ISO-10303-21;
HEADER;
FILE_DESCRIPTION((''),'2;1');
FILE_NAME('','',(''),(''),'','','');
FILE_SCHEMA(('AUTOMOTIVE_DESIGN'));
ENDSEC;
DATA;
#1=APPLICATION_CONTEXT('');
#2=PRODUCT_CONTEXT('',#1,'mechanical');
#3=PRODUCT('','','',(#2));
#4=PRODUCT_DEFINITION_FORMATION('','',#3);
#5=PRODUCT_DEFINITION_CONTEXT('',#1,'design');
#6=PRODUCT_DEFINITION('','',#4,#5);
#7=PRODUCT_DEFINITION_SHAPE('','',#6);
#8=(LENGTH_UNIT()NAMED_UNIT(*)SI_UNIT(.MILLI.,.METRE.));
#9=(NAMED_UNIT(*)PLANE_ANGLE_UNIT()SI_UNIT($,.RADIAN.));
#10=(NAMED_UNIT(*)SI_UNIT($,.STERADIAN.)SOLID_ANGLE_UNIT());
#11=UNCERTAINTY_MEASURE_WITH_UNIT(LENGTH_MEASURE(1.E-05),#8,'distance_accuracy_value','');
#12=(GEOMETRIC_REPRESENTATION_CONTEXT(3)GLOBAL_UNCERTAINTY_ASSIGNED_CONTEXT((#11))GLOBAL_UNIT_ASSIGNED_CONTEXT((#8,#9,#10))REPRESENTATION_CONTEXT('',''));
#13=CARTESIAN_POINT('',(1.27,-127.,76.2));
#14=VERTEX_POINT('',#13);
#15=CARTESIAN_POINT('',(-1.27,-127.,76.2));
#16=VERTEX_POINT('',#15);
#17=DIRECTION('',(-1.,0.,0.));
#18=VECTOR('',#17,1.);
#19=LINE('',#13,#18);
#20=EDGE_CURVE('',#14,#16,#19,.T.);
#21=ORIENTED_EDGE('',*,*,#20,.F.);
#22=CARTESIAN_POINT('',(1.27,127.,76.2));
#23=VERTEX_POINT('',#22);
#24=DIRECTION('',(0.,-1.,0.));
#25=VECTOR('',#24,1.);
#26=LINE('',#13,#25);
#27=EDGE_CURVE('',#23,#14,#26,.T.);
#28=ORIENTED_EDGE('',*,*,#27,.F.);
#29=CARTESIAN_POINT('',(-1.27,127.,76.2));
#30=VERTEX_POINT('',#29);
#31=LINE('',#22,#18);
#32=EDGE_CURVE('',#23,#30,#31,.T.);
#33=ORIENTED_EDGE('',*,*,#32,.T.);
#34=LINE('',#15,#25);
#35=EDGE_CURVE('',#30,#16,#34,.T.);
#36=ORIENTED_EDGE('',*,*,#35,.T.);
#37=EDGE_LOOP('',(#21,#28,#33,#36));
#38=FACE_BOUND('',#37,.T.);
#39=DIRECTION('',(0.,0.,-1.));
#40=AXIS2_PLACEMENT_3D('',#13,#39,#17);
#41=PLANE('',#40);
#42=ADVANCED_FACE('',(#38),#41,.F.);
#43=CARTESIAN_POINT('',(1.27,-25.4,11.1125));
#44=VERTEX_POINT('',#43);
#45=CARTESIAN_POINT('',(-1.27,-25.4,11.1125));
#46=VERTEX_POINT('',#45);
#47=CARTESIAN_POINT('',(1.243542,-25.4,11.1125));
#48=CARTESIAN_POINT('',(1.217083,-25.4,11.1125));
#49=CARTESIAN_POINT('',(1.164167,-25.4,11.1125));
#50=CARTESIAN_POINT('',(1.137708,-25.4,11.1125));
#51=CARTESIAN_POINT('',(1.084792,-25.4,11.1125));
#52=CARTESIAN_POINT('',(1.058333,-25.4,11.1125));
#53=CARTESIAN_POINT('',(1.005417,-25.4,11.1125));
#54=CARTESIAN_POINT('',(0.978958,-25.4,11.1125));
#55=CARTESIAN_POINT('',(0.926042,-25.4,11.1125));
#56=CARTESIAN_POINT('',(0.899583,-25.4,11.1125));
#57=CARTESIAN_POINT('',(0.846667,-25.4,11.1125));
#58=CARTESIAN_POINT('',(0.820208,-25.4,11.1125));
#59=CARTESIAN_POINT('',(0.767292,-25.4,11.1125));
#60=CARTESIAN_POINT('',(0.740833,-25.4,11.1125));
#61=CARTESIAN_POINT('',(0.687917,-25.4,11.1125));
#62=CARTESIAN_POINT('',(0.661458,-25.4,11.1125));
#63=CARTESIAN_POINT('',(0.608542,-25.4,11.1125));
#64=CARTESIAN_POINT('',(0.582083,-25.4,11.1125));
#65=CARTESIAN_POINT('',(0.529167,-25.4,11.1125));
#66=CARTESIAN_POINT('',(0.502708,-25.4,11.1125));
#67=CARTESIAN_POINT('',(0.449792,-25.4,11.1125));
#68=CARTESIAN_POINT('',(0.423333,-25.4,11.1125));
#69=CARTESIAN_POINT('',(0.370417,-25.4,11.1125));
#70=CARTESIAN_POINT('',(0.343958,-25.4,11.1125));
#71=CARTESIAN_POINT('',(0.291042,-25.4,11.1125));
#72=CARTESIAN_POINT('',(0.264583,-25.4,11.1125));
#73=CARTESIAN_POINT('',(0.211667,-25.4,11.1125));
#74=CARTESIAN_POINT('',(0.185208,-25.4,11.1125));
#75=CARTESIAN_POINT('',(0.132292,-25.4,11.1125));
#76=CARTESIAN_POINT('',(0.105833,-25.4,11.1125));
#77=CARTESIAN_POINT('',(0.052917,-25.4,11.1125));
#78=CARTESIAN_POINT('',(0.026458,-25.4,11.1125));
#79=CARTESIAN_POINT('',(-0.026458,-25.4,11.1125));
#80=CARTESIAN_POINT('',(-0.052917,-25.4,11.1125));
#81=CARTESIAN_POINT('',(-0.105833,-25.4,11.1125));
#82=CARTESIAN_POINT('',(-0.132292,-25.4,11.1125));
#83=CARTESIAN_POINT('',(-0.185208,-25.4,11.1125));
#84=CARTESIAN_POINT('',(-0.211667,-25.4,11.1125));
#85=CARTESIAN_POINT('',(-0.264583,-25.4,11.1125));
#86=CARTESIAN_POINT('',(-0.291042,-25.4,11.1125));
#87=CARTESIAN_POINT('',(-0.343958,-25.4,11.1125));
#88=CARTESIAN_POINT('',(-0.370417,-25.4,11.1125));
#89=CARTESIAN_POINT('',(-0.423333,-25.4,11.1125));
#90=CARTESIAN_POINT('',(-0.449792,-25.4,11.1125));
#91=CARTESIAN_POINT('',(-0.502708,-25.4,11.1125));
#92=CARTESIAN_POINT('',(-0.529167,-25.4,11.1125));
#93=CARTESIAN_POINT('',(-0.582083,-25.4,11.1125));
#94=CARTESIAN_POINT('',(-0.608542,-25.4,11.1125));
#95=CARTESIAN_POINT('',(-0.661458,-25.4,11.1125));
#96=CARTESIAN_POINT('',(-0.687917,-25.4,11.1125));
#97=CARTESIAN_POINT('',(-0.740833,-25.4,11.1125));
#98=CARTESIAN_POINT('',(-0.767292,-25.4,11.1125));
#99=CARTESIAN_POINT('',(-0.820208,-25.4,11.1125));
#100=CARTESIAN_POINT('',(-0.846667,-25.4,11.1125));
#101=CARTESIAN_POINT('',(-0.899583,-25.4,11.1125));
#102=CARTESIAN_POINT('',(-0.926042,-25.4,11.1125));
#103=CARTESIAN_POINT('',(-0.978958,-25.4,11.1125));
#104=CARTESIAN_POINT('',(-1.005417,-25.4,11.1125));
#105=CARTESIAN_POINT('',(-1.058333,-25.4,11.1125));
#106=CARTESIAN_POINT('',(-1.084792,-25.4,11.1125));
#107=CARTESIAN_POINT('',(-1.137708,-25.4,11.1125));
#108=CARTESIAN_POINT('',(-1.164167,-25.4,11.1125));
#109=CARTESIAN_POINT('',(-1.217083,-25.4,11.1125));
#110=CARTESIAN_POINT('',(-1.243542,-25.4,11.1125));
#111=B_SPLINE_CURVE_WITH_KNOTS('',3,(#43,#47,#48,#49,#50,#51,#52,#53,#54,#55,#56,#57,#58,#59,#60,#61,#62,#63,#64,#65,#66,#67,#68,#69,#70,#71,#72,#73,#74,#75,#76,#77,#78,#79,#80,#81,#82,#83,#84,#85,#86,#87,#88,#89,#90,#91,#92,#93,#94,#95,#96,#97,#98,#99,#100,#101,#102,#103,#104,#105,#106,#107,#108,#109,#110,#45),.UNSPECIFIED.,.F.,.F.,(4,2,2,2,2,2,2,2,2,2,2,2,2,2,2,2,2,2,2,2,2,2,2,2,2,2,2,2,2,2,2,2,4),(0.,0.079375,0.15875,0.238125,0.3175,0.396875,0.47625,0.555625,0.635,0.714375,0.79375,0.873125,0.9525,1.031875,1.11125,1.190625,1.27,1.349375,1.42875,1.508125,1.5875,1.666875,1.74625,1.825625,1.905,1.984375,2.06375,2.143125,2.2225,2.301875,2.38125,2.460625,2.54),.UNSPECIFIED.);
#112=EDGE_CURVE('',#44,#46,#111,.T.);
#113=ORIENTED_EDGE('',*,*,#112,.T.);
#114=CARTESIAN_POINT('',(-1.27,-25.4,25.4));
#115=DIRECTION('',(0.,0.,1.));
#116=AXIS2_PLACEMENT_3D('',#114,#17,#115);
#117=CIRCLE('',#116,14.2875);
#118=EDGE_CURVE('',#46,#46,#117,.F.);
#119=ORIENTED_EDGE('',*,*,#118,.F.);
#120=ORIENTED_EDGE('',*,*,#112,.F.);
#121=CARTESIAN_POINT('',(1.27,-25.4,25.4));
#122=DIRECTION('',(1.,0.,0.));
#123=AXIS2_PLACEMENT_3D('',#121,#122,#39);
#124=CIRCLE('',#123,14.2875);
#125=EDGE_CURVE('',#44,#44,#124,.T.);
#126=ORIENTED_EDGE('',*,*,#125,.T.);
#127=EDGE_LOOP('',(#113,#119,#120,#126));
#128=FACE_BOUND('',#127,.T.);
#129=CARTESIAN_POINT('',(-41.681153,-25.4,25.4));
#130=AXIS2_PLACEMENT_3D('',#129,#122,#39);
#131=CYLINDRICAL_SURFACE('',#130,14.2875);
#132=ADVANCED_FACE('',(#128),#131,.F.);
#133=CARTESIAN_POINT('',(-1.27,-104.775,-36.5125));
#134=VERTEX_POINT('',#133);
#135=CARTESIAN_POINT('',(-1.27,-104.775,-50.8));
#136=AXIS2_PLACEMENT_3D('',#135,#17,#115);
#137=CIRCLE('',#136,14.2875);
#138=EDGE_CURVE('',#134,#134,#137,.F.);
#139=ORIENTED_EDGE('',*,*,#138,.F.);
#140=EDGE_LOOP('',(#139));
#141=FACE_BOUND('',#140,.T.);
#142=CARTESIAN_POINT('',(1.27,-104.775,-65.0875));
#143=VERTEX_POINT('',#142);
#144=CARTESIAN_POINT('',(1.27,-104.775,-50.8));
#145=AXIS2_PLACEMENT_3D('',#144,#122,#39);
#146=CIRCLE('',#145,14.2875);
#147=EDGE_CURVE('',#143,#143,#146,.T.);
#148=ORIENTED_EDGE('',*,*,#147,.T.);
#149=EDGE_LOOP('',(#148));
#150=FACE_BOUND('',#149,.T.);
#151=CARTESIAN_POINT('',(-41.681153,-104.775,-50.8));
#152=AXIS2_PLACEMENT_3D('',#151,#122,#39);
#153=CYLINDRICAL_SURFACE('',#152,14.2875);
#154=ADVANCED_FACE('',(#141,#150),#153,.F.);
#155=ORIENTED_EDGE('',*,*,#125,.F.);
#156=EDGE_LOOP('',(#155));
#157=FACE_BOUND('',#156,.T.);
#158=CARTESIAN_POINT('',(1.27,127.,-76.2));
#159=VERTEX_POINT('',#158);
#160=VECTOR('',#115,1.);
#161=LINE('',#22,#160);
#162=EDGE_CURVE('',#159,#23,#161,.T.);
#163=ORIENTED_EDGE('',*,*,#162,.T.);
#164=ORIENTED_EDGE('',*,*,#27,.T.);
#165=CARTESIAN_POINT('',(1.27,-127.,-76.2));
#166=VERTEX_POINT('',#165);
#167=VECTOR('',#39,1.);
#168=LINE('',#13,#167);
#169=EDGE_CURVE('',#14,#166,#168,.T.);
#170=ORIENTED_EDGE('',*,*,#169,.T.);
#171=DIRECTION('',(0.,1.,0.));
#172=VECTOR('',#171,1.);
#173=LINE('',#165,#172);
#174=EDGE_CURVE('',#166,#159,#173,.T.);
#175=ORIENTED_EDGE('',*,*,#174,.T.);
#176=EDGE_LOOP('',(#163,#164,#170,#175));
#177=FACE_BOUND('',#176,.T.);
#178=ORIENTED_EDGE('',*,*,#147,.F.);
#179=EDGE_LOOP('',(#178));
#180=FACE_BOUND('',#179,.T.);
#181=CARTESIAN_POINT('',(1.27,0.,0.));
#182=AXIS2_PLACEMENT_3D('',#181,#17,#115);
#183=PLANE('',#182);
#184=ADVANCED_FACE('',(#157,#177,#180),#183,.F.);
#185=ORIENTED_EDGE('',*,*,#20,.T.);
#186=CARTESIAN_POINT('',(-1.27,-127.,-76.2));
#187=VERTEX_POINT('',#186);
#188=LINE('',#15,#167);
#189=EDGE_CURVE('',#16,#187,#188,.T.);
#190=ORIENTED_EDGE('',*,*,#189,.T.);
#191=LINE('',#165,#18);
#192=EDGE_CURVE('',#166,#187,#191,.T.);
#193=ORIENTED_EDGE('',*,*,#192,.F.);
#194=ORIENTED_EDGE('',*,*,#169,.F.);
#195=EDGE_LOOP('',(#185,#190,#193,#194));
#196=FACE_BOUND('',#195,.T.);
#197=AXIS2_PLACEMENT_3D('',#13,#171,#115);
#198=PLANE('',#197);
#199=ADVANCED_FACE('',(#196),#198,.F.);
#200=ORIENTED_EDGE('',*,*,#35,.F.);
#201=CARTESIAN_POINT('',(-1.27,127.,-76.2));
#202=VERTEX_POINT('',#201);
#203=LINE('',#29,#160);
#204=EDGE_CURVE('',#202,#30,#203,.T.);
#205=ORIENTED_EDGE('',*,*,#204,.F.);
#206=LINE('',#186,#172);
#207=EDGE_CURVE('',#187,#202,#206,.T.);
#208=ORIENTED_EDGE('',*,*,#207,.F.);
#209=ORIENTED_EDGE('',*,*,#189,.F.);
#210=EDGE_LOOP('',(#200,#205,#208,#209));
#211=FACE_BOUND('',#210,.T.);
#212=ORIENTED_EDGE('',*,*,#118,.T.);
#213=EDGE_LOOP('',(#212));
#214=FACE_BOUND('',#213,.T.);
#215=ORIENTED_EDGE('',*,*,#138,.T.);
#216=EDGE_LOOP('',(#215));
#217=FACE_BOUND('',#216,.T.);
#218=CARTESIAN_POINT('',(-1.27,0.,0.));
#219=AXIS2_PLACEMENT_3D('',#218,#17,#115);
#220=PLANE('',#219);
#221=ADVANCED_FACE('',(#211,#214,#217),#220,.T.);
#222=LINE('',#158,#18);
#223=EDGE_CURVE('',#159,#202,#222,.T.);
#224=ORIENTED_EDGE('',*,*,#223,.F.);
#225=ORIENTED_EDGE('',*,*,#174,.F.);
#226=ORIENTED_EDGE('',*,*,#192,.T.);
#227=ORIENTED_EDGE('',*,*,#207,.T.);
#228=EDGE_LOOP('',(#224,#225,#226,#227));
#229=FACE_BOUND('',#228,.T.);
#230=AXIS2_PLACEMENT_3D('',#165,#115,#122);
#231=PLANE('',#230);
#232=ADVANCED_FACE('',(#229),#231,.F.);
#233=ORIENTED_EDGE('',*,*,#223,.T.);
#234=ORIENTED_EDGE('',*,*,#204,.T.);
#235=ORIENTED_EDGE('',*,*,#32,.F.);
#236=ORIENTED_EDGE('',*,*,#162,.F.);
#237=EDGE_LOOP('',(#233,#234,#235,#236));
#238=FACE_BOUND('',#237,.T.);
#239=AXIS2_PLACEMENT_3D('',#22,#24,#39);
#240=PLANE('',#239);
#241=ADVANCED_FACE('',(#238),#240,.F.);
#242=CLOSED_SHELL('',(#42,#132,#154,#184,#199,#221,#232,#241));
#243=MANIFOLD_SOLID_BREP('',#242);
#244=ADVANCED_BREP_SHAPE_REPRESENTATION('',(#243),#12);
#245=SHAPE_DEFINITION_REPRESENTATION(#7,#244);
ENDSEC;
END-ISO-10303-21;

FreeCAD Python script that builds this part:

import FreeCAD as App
import Part
import Sketcher
Q = App.Units.Quantity

doc = App.newDocument("Part")
body = doc.addObject("PartDesign::Body", "Body")

# Sketch on YZ plane
sketch1 = body.newObject("Sketcher::SketchObject", "Sketch")
sketch1.AttachmentSupport = (doc.getObject("YZ_Plane"), [""])
sketch1.MapMode = "FlatFace"
sketch1.addGeometry([
    Part.LineSegment(App.Vector(127, 76, 0), App.Vector(-127, 76, 0)),
    Part.LineSegment(App.Vector(-127, 76, 0), App.Vector(-127, -76, 0)),
    Part.LineSegment(App.Vector(-127, -76, 0), App.Vector(127, -76, 0)),
    Part.LineSegment(App.Vector(127, -76, 0), App.Vector(127, 76, 0)),
], False)
sketch1.addConstraint([
    Sketcher.Constraint("Coincident", 0, 2, 1, 1),
    Sketcher.Constraint("Coincident", 1, 2, 2, 1),
    Sketcher.Constraint("Coincident", 2, 2, 3, 1),
    Sketcher.Constraint("Coincident", 3, 2, 0, 1),
    Sketcher.Constraint("Horizontal", 0),
    Sketcher.Constraint("Vertical", 1),
    Sketcher.Constraint("Horizontal", 2),
    Sketcher.Constraint("Vertical", 3),
    Sketcher.Constraint("Symmetric", 0, 2, 2, 2, -1, 1),
    Sketcher.Constraint("DistanceX", 0, 2, 0, 1, Q("10 in")),
    Sketcher.Constraint("DistanceY", 1, 2, 1, 1, Q("6 in")),
])
pad1 = body.newObject("PartDesign::Pad", "Pad")
pad1.Profile = sketch1
pad1.Length = Q("0.1 in")
pad1.Midplane = True

# Sketch on YZ plane
sketch2 = body.newObject("Sketcher::SketchObject", "Sketch001")
sketch2.AttachmentSupport = (doc.getObject("YZ_Plane"), [""])
sketch2.MapMode = "FlatFace"
sketch2.AttachmentOffset = App.Placement(App.Vector(0, 0, 0.05 * 25.4), App.Rotation())
sketch2.addGeometry(Part.Circle(App.Vector(-25, 25, 0), App.Vector(0, 0, 1), 14), False)
sketch2.addConstraint([
    Sketcher.Constraint("Diameter", 0, Q("1.125 in")),
    Sketcher.Constraint("DistanceX", 0, 3, -1, 1, Q("1 in")),
    Sketcher.Constraint("DistanceY", -1, 1, 0, 3, Q("1 in")),
])
pocket1 = body.newObject("PartDesign::Pocket", "Pocket")
pocket1.Profile = sketch2
pocket1.Length = Q("0.1 in")

# Sketch on YZ plane
sketch3 = body.newObject("Sketcher::SketchObject", "Sketch002")
sketch3.AttachmentSupport = (doc.getObject("YZ_Plane"), [""])
sketch3.MapMode = "FlatFace"
sketch3.AttachmentOffset = App.Placement(App.Vector(0, 0, 0.05 * 25.4), App.Rotation())
sketch3.addGeometry(Part.Circle(App.Vector(-105, -51, 0), App.Vector(0, 0, 1), 14), False)
sketch3.addConstraint([
    Sketcher.Constraint("Diameter", 0, Q("1.125 in")),
    Sketcher.Constraint("DistanceY", 0, 3, -1, 1, Q("2 in")),
    Sketcher.Constraint("DistanceX", 0, 3, -1, 1, Q("4.125 in")),
])
pocket2 = body.newObject("PartDesign::Pocket", "Pocket001")
pocket2.Profile = sketch3
pocket2.Length = Q("0.1 in")

doc.recompute()
